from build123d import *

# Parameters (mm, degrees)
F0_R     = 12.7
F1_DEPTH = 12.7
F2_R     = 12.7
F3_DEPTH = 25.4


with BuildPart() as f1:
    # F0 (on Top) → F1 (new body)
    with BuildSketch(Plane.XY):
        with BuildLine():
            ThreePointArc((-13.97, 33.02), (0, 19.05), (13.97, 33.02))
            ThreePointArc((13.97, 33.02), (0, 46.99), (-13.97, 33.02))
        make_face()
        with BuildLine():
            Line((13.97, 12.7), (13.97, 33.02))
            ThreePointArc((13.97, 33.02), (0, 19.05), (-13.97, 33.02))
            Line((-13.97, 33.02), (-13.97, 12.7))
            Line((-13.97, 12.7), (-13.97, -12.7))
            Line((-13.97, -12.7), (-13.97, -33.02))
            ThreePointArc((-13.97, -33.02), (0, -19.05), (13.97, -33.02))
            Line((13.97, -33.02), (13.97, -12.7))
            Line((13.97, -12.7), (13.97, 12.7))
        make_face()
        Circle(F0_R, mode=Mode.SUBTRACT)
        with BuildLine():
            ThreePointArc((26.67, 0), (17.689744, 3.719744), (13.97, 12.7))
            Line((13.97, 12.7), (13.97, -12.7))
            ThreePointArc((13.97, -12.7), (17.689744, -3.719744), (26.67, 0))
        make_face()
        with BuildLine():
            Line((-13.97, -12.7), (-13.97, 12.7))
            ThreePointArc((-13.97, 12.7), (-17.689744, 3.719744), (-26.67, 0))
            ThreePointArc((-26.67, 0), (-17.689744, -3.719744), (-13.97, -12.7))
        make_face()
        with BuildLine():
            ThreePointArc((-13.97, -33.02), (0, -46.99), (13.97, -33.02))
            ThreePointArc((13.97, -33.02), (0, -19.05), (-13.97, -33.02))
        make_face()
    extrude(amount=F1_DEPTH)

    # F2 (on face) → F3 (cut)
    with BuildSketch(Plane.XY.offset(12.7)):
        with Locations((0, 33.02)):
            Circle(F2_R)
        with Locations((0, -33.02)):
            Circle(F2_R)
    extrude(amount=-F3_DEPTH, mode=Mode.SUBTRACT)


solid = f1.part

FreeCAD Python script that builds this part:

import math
import FreeCAD as App
import Part
import Sketcher
Q = App.Units.Quantity

doc = App.newDocument("Part")
body = doc.addObject("PartDesign::Body", "Body")

# Sketch on XY plane
sketch1 = body.newObject("Sketcher::SketchObject", "Sketch")
sketch1.AttachmentSupport = (doc.getObject("XY_Plane"), [""])
sketch1.MapMode = "FlatFace"
sketch1.addGeometry([
    Part.ArcOfCircle(Part.Circle(App.Vector(0, 33, 0), App.Vector(0, 0, 1), 14), math.radians(0), math.radians(180)),  # 0
    Part.LineSegment(App.Vector(-14, 33, 0), App.Vector(-14, 13, 0)),  # 1
    Part.ArcOfCircle(Part.Circle(App.Vector(-27, 13, 0), App.Vector(0, 0, 1), 13), math.radians(-90), math.radians(0)),  # 2
    Part.ArcOfCircle(Part.Circle(App.Vector(-27, -13, 0), App.Vector(0, 0, 1), 13), math.radians(0), math.radians(90)),  # 3
    Part.LineSegment(App.Vector(-14, -13, 0), App.Vector(-14, -33, 0)),  # 4
    Part.ArcOfCircle(Part.Circle(App.Vector(0, -33, 0), App.Vector(0, 0, 1), 14), math.radians(180), math.radians(360)),  # 5
    Part.LineSegment(App.Vector(14, -33, 0), App.Vector(14, -13, 0)),  # 6
    Part.ArcOfCircle(Part.Circle(App.Vector(27, -13, 0), App.Vector(0, 0, 1), 13), math.radians(90), math.radians(180)),  # 7
    Part.ArcOfCircle(Part.Circle(App.Vector(27, 13, 0), App.Vector(0, 0, 1), 13), math.radians(-180), math.radians(-90)),  # 8
    Part.LineSegment(App.Vector(14, 13, 0), App.Vector(14, 33, 0)),  # 9
    Part.Circle(App.Vector(0, 0, 0), App.Vector(0, 0, 1), 13),  # 10
], False)
sketch1.addConstraint([
    Sketcher.Constraint("Tangent", 0, 2, 1, 1),
    Sketcher.Constraint("Tangent", 1, 2, 2, 2),
    Sketcher.Constraint("Tangent", 2, 1, 3, 2),
    Sketcher.Constraint("Tangent", 3, 1, 4, 1),
    Sketcher.Constraint("Tangent", 4, 2, 5, 1),
    Sketcher.Constraint("Tangent", 5, 2, 6, 1),
    Sketcher.Constraint("Tangent", 6, 2, 7, 2),
    Sketcher.Constraint("Tangent", 7, 1, 8, 2),
    Sketcher.Constraint("Tangent", 8, 1, 9, 1),
    Sketcher.Constraint("Tangent", 9, 2, 0, 1),
    Sketcher.Constraint("Vertical", 1),
    Sketcher.Constraint("Vertical", 4),
    Sketcher.Constraint("Vertical", 6),
    Sketcher.Constraint("Vertical", 9),
    Sketcher.Constraint("Coincident", 10, 3, -1, 1),
    Sketcher.Constraint("Equal", 2, 3),
    Sketcher.Constraint("Equal", 0, 5),
    Sketcher.Constraint("Equal", 3, 7),
    Sketcher.Constraint("Equal", 7, 8),
    Sketcher.Constraint("Equal", 8, 10),
    Sketcher.Constraint("Symmetric", 0, 3, 5, 3, -1, 1),
    Sketcher.Constraint("Symmetric", 3, 3, 7, 3, -2),
    Sketcher.Constraint("PointOnObject", 2, 1, -1),
    Sketcher.Constraint("Diameter", 10, Q("1 in")),
    Sketcher.Constraint("Radius", 0, Q("0.55 in")),
    Sketcher.Constraint("DistanceY", 1, 2, 1, 1, Q("0.8 in")),
])
pad1 = body.newObject("PartDesign::Pad", "Pad")
pad1.Profile = sketch1
pad1.Length = Q("0.5 in")

# Sketch on XY plane
sketch2 = body.newObject("Sketcher::SketchObject", "Sketch001")
sketch2.AttachmentSupport = (doc.getObject("XY_Plane"), [""])
sketch2.MapMode = "FlatFace"
sketch2.AttachmentOffset = App.Placement(App.Vector(0, 0, 0.5 * 25.4), App.Rotation())
sketch2.addGeometry([
    Part.Circle(App.Vector(0, 33, 0), App.Vector(0, 0, 1), 13),
    Part.Circle(App.Vector(0, -33, 0), App.Vector(0, 0, 1), 13),
], False)
sketch2.addConstraint([
    Sketcher.Constraint("Equal", 0, 1),
    Sketcher.Constraint("Symmetric", 0, 3, 1, 3, -1, 1),
    Sketcher.Constraint("PointOnObject", 0, 3, -2),
    Sketcher.Constraint("Diameter", 0, Q("1 in")),
    Sketcher.Constraint("DistanceY", -1, 1, 0, 3, Q("1.3 in")),
])
pocket1 = body.newObject("PartDesign::Pocket", "Pocket")
pocket1.Profile = sketch2
pocket1.Length = Q("1 in")

doc.recompute()
